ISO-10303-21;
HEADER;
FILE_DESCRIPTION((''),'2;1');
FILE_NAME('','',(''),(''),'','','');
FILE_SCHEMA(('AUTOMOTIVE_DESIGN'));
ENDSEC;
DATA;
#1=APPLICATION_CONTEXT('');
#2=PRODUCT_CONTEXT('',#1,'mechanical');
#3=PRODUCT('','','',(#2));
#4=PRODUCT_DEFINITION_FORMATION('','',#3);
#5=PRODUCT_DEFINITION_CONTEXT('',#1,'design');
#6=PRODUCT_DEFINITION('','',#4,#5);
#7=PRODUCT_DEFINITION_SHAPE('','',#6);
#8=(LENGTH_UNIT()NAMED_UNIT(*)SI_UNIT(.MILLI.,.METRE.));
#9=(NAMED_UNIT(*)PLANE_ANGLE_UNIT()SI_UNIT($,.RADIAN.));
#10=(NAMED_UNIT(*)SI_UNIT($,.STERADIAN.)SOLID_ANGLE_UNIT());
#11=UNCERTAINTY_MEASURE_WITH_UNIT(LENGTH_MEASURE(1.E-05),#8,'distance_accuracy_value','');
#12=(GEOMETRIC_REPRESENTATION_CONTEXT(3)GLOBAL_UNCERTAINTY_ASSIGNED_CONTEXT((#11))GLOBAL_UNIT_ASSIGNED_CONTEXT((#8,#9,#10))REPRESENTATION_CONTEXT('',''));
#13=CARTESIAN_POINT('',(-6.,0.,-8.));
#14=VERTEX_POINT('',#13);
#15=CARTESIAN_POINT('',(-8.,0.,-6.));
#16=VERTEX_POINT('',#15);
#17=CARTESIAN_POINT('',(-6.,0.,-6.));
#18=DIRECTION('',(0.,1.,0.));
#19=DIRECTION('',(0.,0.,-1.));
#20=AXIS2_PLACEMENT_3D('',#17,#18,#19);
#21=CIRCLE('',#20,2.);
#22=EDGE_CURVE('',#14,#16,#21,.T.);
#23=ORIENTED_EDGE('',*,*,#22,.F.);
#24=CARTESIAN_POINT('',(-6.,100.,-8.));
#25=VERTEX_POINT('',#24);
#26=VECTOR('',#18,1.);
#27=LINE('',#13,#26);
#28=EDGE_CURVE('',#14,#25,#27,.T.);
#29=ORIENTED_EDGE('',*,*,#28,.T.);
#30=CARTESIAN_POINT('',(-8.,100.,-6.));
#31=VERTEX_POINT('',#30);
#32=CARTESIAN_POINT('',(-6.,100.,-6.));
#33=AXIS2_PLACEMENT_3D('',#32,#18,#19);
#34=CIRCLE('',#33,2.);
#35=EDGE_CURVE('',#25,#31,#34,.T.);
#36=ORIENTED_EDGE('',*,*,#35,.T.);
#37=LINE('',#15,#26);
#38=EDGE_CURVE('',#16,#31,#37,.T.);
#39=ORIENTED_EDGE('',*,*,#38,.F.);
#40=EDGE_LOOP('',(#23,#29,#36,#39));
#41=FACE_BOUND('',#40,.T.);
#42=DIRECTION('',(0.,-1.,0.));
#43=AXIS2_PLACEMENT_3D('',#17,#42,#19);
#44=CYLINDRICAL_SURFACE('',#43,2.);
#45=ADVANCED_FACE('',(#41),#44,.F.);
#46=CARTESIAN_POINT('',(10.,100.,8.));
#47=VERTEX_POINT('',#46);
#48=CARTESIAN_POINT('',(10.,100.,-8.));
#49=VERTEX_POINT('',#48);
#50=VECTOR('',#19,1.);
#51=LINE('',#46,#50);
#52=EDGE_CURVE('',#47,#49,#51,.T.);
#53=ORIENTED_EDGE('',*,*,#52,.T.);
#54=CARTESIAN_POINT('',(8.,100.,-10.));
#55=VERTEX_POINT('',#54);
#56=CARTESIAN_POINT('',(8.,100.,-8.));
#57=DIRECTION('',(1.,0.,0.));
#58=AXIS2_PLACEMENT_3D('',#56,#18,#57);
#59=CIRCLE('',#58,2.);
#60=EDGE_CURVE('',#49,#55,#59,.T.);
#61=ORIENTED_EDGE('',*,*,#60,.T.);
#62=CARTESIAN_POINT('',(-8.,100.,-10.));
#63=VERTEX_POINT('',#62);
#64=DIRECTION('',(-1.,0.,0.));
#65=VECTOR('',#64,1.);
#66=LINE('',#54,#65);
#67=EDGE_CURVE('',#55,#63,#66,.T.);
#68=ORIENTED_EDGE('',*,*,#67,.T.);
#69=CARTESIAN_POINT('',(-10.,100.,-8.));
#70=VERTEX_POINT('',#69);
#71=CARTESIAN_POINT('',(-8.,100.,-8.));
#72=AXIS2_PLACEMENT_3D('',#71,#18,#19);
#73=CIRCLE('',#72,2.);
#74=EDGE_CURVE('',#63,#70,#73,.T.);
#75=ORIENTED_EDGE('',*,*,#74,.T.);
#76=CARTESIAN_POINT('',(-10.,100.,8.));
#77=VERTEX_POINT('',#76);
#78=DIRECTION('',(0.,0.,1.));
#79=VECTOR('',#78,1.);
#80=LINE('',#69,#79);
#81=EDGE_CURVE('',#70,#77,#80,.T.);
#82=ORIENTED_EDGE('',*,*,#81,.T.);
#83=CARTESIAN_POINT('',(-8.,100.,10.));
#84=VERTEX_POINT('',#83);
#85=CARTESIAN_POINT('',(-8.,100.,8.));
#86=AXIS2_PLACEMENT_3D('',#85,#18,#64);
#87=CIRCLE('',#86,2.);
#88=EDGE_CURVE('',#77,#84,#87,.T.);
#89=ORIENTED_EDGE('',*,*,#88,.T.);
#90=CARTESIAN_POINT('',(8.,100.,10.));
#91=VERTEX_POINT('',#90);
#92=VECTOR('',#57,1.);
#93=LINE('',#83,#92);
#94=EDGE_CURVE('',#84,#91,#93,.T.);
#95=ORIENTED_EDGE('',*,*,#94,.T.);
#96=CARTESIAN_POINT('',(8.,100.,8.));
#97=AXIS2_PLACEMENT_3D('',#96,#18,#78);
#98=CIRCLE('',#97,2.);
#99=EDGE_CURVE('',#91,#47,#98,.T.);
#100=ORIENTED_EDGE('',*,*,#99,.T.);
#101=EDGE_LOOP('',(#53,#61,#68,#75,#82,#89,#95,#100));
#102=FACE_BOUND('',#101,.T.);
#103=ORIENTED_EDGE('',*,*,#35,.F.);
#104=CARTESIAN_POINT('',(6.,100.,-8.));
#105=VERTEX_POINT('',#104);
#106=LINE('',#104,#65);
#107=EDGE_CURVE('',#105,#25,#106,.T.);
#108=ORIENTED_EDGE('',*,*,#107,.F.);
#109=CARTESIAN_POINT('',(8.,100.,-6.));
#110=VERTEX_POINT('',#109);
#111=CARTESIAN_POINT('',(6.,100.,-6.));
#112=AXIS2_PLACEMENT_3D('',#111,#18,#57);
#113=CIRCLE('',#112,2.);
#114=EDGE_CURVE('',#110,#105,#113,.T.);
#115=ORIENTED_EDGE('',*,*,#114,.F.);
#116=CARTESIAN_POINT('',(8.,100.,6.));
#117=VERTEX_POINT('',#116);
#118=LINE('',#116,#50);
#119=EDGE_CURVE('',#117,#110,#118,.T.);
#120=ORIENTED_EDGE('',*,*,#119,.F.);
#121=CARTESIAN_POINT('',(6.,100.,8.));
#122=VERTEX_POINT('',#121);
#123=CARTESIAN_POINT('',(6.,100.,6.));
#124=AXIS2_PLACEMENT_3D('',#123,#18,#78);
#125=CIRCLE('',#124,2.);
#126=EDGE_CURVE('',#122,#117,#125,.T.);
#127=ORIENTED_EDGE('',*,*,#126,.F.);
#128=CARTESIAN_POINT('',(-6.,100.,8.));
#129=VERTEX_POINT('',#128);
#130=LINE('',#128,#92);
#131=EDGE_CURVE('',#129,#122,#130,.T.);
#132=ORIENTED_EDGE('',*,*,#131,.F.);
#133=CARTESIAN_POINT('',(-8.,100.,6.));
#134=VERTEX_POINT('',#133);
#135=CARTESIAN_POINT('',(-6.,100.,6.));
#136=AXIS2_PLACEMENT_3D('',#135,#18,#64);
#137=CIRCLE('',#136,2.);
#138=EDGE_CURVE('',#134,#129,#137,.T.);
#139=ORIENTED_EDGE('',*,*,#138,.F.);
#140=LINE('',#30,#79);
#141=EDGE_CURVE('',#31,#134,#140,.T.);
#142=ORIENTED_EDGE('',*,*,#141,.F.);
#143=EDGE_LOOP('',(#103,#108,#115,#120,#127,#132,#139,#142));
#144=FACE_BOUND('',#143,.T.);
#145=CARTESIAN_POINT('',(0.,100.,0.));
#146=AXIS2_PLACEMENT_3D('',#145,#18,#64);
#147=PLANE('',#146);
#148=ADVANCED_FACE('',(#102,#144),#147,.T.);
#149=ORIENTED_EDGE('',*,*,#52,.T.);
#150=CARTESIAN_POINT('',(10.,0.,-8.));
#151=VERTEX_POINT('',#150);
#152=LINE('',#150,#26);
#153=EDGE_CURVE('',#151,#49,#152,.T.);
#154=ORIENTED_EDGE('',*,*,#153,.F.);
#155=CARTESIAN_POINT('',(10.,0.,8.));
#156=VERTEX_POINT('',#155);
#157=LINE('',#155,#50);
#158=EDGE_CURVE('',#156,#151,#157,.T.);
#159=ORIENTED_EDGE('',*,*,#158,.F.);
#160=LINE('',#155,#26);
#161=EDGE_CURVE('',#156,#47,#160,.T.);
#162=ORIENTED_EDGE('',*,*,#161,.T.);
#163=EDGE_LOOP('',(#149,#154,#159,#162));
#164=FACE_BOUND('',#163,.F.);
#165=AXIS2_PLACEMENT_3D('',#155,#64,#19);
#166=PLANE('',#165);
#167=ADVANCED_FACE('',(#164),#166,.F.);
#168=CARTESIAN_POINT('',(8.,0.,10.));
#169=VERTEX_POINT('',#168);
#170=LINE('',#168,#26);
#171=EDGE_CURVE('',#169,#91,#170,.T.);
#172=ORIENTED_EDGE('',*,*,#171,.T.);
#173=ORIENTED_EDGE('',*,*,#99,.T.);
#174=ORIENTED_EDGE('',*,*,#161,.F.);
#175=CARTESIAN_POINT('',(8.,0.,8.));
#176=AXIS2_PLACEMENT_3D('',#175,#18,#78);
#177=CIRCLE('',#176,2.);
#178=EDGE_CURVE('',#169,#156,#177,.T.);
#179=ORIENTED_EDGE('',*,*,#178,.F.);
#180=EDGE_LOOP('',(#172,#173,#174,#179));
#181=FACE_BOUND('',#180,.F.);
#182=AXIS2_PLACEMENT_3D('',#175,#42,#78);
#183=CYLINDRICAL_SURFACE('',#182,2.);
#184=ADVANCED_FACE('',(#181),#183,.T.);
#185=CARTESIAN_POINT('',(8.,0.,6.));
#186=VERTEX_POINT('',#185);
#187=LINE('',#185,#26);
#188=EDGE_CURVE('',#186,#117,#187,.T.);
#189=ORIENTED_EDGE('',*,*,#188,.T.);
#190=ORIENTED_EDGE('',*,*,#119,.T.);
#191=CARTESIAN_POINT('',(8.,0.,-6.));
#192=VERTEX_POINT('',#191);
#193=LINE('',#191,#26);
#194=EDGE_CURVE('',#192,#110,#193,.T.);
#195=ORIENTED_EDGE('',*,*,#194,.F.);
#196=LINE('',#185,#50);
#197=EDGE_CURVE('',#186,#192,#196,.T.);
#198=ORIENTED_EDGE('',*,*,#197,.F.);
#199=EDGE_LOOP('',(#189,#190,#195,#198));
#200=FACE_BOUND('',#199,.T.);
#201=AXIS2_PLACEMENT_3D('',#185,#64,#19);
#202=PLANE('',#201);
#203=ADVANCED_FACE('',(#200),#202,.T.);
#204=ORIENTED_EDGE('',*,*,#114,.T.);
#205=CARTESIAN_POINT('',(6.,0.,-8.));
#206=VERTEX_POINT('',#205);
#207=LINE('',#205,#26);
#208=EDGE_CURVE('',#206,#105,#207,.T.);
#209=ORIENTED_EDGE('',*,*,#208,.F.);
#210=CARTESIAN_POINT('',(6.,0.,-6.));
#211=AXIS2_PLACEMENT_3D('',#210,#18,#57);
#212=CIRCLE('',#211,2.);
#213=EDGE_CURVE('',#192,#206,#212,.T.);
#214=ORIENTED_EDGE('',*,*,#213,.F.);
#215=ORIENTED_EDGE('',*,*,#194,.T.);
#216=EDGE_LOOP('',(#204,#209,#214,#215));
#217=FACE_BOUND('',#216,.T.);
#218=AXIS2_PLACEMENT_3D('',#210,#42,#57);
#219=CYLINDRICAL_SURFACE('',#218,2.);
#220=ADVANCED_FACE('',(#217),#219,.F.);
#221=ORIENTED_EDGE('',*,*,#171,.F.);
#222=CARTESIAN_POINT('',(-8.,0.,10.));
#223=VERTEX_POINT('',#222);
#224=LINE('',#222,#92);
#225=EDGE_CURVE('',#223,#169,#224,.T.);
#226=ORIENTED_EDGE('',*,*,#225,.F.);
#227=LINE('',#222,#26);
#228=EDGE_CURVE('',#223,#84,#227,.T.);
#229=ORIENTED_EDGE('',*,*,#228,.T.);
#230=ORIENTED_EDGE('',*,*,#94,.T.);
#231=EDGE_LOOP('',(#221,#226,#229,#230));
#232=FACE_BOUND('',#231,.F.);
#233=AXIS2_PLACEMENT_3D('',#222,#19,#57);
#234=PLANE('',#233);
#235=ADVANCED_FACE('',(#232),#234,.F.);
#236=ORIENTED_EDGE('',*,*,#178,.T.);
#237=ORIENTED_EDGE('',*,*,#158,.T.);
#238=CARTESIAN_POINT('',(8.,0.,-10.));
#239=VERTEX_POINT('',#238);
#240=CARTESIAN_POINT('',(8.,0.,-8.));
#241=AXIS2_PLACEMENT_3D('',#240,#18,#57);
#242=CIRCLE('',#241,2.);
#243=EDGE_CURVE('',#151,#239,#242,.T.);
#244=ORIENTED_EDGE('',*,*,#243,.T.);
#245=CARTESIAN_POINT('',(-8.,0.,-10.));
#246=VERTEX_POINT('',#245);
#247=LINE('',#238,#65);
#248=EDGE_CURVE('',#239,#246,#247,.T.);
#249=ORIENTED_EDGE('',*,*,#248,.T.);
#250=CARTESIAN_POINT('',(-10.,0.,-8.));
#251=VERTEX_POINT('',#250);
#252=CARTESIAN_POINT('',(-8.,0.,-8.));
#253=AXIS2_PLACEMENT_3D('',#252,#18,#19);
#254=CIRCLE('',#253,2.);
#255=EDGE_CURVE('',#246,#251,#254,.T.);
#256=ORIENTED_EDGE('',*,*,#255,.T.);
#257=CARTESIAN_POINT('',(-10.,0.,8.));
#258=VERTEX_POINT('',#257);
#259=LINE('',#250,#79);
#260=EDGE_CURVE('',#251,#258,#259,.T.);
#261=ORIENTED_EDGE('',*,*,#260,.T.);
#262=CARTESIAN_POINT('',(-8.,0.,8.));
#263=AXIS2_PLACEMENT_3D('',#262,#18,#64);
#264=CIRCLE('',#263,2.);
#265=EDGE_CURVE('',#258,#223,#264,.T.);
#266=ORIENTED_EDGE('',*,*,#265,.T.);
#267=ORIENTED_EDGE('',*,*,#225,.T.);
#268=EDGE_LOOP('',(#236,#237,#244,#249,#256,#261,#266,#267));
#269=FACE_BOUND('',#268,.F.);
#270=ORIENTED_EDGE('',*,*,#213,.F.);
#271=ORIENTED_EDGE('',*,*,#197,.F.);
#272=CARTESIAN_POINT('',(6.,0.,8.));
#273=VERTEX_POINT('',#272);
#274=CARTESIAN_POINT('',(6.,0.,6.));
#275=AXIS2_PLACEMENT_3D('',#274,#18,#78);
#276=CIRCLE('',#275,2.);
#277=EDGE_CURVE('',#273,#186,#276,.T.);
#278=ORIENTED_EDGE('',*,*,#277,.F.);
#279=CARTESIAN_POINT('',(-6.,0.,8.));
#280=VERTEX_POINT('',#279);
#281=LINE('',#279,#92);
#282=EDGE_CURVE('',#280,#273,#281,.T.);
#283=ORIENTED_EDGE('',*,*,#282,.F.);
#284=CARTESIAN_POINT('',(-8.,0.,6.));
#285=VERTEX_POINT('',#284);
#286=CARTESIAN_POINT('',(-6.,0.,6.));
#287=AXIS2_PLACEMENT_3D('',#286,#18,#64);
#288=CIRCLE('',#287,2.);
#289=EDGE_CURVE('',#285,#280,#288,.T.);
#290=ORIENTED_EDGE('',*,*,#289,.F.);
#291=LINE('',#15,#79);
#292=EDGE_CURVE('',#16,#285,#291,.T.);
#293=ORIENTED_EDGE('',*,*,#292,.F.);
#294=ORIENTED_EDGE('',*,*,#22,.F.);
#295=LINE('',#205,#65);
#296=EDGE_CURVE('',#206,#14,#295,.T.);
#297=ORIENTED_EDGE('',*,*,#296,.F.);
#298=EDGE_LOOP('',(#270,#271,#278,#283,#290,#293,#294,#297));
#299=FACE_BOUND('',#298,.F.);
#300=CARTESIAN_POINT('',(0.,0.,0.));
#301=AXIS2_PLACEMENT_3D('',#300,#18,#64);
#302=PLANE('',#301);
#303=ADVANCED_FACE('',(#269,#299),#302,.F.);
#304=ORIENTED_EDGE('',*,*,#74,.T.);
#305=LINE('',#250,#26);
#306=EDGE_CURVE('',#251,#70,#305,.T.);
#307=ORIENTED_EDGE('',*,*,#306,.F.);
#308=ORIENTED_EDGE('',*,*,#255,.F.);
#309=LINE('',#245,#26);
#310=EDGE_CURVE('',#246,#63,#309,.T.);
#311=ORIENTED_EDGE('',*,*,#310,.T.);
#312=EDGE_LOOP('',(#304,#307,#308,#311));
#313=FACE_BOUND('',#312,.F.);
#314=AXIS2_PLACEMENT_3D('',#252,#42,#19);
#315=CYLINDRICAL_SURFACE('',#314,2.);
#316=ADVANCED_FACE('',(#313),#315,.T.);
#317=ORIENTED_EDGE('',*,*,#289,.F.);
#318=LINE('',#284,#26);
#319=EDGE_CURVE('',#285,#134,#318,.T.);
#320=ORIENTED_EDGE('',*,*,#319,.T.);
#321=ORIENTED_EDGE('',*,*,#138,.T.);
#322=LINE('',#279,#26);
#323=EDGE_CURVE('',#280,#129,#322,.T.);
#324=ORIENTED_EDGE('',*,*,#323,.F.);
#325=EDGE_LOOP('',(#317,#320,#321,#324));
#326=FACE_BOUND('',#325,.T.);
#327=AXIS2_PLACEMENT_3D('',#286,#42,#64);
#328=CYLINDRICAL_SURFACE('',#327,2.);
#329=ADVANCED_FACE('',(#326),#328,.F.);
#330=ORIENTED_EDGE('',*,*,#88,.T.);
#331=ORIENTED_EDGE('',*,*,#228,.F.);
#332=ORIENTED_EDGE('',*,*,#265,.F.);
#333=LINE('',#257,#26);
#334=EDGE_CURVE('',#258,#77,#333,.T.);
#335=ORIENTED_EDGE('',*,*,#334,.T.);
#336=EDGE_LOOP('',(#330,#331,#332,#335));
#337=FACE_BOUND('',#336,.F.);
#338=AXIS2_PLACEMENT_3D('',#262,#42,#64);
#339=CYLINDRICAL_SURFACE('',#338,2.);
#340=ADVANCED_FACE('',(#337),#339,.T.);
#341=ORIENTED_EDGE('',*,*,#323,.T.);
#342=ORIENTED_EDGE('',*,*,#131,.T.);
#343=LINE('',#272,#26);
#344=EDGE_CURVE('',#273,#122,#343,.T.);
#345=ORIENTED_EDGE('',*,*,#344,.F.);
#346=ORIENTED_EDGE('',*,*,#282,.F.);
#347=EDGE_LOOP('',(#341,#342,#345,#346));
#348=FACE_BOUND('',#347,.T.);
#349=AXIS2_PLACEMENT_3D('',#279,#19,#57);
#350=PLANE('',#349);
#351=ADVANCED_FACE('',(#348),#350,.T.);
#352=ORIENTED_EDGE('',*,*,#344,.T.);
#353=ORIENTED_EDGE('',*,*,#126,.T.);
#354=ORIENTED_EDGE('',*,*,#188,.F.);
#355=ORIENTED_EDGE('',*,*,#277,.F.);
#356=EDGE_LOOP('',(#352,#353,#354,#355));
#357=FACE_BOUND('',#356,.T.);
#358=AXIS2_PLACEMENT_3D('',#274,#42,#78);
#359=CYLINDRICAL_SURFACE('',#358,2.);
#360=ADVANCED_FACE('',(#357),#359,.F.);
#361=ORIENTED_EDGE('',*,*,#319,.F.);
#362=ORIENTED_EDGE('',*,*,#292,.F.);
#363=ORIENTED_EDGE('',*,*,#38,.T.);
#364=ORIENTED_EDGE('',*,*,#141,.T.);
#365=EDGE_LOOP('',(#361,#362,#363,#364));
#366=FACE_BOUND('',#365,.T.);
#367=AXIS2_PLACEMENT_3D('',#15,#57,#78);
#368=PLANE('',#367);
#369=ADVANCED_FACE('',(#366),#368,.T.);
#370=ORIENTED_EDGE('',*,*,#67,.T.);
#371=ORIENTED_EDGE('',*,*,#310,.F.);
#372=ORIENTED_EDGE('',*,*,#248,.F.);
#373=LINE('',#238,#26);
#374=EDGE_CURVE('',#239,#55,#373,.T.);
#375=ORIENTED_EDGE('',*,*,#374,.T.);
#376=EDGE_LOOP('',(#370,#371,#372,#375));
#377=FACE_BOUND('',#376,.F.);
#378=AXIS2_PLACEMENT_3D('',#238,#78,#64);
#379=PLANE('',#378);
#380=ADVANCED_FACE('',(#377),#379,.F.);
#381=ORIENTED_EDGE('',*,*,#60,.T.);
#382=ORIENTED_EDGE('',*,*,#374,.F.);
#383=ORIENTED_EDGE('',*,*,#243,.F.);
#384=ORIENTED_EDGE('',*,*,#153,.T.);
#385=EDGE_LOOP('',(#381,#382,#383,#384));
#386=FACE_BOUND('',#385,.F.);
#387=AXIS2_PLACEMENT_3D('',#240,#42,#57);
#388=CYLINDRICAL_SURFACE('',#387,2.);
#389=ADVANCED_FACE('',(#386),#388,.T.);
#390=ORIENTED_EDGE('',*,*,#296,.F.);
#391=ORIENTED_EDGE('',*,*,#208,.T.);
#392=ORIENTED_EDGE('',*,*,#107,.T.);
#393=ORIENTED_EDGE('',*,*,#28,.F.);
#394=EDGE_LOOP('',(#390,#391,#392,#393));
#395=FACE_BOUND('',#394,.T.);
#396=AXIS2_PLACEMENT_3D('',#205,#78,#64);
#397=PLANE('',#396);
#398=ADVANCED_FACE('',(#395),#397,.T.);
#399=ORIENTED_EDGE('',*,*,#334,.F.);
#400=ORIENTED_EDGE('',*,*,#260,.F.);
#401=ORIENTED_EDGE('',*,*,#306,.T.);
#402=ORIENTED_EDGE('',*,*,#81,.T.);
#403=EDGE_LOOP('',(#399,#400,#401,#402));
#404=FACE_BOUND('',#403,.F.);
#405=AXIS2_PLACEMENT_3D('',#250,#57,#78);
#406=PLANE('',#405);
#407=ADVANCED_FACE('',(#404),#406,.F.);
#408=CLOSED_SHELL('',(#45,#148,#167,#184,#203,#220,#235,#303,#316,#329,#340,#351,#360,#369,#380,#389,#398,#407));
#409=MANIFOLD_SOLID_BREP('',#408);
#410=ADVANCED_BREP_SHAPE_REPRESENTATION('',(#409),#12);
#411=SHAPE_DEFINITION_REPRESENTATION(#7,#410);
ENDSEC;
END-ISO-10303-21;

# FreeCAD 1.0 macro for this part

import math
import FreeCAD as App
import Part
import Sketcher
from FreeCAD import Vector
Q = App.Units.Quantity

doc = App.newDocument("Part")
params = doc.addObject("Spreadsheet::Sheet", "Params")
for row, (alias, value) in enumerate([
    ("sketch1_radius", "2 mm"),
    ("sketch1_width", "16 mm"),
    ("pad1_length", "100 mm"),
], start=1):
    params.set(f"A{row}", alias)
    params.set(f"B{row}", "=" + value)
    params.setAlias(f"B{row}", alias)

body = doc.addObject("PartDesign::Body", "Body")

# Sketch on XZ plane
sketch1 = doc.addObject("Sketcher::SketchObject", "Sketch")
body.addObject(sketch1)
sketch1.AttachmentSupport = (doc.XZ_Plane, [""])
sketch1.MapMode = "FlatFace"
sketch1.addGeometry(Part.ArcOfCircle(Part.Circle(Vector(8, -8, 0), Vector(0, 0, 1), 2), math.radians(-90), math.radians(0)), False)
sketch1.addGeometry(Part.LineSegment(Vector(8, -10, 0), Vector(-8, -10, 0)), False)
sketch1.addGeometry(Part.ArcOfCircle(Part.Circle(Vector(-8, -8, 0), Vector(0, 0, 1), 2), math.radians(180), math.radians(270)), False)
sketch1.addGeometry(Part.LineSegment(Vector(-10, -8, 0), Vector(-10, 8, 0)), False)
sketch1.addGeometry(Part.ArcOfCircle(Part.Circle(Vector(-8, 8, 0), Vector(0, 0, 1), 2), math.radians(90), math.radians(180)), False)
sketch1.addGeometry(Part.LineSegment(Vector(-8, 10, 0), Vector(8, 10, 0)), False)
sketch1.addGeometry(Part.ArcOfCircle(Part.Circle(Vector(8, 8, 0), Vector(0, 0, 1), 2), math.radians(0), math.radians(90)), False)
sketch1.addGeometry(Part.LineSegment(Vector(10, 8, 0), Vector(10, -8, 0)), False)
sketch1.addGeometry(Part.LineSegment(Vector(-6, -8, 0), Vector(6, -8, 0)), False)
sketch1.addGeometry(Part.ArcOfCircle(Part.Circle(Vector(6, -6, 0), Vector(0, 0, 1), 2), math.radians(-90), math.radians(0)), False)
sketch1.addGeometry(Part.LineSegment(Vector(8, -6, 0), Vector(8, 6, 0)), False)
sketch1.addGeometry(Part.ArcOfCircle(Part.Circle(Vector(6, 6, 0), Vector(0, 0, 1), 2), math.radians(0), math.radians(90)), False)
sketch1.addGeometry(Part.LineSegment(Vector(6, 8, 0), Vector(-6, 8, 0)), False)
sketch1.addGeometry(Part.ArcOfCircle(Part.Circle(Vector(-6, 6, 0), Vector(0, 0, 1), 2), math.radians(90), math.radians(180)), False)
sketch1.addGeometry(Part.LineSegment(Vector(-8, 6, 0), Vector(-8, -6, 0)), False)
sketch1.addGeometry(Part.ArcOfCircle(Part.Circle(Vector(-6, -6, 0), Vector(0, 0, 1), 2), math.radians(180), math.radians(270)), False)
sketch1.addConstraint(Sketcher.Constraint("Tangent", 0, 1, 1, 1))
sketch1.addConstraint(Sketcher.Constraint("Tangent", 1, 2, 2, 2))
sketch1.addConstraint(Sketcher.Constraint("Tangent", 2, 1, 3, 1))
sketch1.addConstraint(Sketcher.Constraint("Tangent", 3, 2, 4, 2))
sketch1.addConstraint(Sketcher.Constraint("Tangent", 4, 1, 5, 1))
sketch1.addConstraint(Sketcher.Constraint("Tangent", 5, 2, 6, 2))
sketch1.addConstraint(Sketcher.Constraint("Tangent", 6, 1, 7, 1))
sketch1.addConstraint(Sketcher.Constraint("Tangent", 7, 2, 0, 2))
sketch1.addConstraint(Sketcher.Constraint("Tangent", 8, 2, 9, 1))
sketch1.addConstraint(Sketcher.Constraint("Tangent", 9, 2, 10, 1))
sketch1.addConstraint(Sketcher.Constraint("Tangent", 10, 2, 11, 1))
sketch1.addConstraint(Sketcher.Constraint("Tangent", 11, 2, 12, 1))
sketch1.addConstraint(Sketcher.Constraint("Tangent", 12, 2, 13, 1))
sketch1.addConstraint(Sketcher.Constraint("Tangent", 13, 2, 14, 1))
sketch1.addConstraint(Sketcher.Constraint("Tangent", 14, 2, 15, 1))
sketch1.addConstraint(Sketcher.Constraint("Tangent", 15, 2, 8, 1))
sketch1.addConstraint(Sketcher.Constraint("Horizontal", 1))
sketch1.addConstraint(Sketcher.Constraint("Vertical", 3))
sketch1.addConstraint(Sketcher.Constraint("Horizontal", 5))
sketch1.addConstraint(Sketcher.Constraint("Vertical", 7))
sketch1.addConstraint(Sketcher.Constraint("Horizontal", 8))
sketch1.addConstraint(Sketcher.Constraint("Vertical", 10))
sketch1.addConstraint(Sketcher.Constraint("Horizontal", 12))
sketch1.addConstraint(Sketcher.Constraint("Vertical", 14))
sketch1.addConstraint(Sketcher.Constraint("Equal", 0, 2))
sketch1.addConstraint(Sketcher.Constraint("Equal", 2, 4))
sketch1.addConstraint(Sketcher.Constraint("Equal", 4, 6))
sketch1.addConstraint(Sketcher.Constraint("Equal", 6, 9))
sketch1.addConstraint(Sketcher.Constraint("Equal", 9, 11))
sketch1.addConstraint(Sketcher.Constraint("Equal", 11, 13))
sketch1.addConstraint(Sketcher.Constraint("Equal", 13, 15))
sketch1.addConstraint(Sketcher.Constraint("Symmetric", 0, 3, 4, 3, -1, 1))
sketch1.addConstraint(Sketcher.Constraint("Symmetric", 9, 3, 13, 3, -1, 1))
sketch1.addConstraint(Sketcher.Constraint("Horizontal", 7, 2, 8, 2))
sketch1.addConstraint(Sketcher.Constraint("Vertical", 5, 2, 9, 2))
sketch1.addConstraint(Sketcher.Constraint("Equal", 5, 3))
sketch1.addConstraint(Sketcher.Constraint("Radius", 0, Q("2 mm")))
sketch1.addConstraint(Sketcher.Constraint("DistanceX", 1, 2, 1, 1, Q("16 mm")))
sketch1.setExpression("Constraints[36]", "Params.sketch1_radius")
sketch1.setExpression("Constraints[37]", "Params.sketch1_width")
pad1 = doc.addObject("PartDesign::Pad", "Pad")
body.addObject(pad1)
pad1.Profile = sketch1
pad1.setExpression("Length", "Params.pad1_length")
pad1.Reversed = True

doc.recompute()
